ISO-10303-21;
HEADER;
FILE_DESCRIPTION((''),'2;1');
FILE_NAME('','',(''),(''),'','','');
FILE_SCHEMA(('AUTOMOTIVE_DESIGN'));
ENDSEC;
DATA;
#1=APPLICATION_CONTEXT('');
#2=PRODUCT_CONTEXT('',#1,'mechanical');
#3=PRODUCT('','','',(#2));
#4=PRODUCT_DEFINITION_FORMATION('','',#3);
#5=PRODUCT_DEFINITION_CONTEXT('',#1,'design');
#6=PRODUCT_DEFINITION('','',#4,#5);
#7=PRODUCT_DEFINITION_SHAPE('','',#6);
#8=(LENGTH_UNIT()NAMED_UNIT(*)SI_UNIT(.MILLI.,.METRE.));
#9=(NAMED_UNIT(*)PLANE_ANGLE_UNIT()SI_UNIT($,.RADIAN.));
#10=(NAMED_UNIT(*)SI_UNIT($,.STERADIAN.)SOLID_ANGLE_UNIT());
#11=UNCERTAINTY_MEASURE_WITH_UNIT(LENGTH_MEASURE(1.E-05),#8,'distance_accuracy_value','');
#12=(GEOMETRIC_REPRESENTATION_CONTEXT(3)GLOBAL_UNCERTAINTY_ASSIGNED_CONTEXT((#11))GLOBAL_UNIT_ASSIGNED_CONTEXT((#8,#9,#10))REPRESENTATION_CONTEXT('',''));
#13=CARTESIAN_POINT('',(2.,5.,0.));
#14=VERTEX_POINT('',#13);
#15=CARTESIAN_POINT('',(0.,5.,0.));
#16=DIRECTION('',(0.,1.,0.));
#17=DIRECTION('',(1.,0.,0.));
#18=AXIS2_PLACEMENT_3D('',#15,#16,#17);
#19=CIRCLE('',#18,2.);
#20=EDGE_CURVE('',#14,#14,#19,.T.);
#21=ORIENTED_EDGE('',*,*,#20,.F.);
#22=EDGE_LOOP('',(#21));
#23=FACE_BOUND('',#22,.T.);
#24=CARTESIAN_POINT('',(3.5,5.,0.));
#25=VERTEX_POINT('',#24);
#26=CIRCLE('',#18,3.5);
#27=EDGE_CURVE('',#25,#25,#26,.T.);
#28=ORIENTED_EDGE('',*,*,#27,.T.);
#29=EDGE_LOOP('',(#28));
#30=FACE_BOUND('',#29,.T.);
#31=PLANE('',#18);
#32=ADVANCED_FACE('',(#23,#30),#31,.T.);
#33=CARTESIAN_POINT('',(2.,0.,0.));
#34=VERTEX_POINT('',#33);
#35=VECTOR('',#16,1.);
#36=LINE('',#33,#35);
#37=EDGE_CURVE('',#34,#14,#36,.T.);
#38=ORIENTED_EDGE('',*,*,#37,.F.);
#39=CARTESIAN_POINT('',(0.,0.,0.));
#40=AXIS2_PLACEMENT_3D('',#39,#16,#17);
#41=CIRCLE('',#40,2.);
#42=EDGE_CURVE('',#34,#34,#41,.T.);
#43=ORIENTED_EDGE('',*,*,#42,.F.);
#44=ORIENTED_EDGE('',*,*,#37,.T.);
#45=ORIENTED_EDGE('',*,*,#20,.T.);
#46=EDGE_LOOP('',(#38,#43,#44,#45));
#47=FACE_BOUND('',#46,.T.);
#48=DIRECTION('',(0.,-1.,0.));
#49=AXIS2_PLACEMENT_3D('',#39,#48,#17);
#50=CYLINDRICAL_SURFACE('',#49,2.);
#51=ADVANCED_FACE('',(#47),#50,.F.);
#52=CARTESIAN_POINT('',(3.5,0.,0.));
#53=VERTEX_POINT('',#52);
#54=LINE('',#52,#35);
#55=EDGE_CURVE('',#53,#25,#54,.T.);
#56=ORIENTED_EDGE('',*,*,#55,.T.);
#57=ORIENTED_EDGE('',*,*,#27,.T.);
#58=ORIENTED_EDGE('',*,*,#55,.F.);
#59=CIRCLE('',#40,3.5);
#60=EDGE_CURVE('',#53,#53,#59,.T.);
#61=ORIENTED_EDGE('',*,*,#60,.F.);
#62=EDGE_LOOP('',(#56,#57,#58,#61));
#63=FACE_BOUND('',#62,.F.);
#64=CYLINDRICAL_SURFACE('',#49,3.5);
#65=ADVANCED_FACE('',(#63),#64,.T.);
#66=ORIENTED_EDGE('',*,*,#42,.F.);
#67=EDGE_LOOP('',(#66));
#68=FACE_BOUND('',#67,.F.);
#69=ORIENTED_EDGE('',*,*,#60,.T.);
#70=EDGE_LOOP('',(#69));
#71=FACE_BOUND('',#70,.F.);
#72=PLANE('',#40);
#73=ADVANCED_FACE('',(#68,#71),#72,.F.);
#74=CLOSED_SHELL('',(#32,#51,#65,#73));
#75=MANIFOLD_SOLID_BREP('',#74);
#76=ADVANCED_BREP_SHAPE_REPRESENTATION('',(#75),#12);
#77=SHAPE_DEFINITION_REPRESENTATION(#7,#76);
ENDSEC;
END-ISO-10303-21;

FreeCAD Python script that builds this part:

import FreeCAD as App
import Part
import Sketcher
from FreeCAD import Vector

doc = App.newDocument("Part")
body = doc.addObject("PartDesign::Body", "Body")

sketch1 = body.newObject("Sketcher::SketchObject", "Sketch")
sketch1.AttachmentSupport = (doc.getObject("XZ_Plane"), [""])
sketch1.MapMode = "FlatFace"
sketch1.addGeometry(Part.Circle(Vector(0, 0, 0), Vector(0, 0, 1), 3.5), False)
sketch1.addGeometry(Part.Circle(Vector(0, 0, 0), Vector(0, 0, 1), 2), False)
sketch1.addConstraint(Sketcher.Constraint("Coincident", 0, 3, -1, 1))
sketch1.addConstraint(Sketcher.Constraint("Coincident", 1, 3, -1, 1))
sketch1.addConstraint(Sketcher.Constraint("Diameter", 0, 7.0))
sketch1.addConstraint(Sketcher.Constraint("Diameter", 1, 4.0))
pad1 = body.newObject("PartDesign::Pad", "Pad")
pad1.Profile = sketch1
pad1.Length = 5
pad1.Reversed = True

doc.recompute()
